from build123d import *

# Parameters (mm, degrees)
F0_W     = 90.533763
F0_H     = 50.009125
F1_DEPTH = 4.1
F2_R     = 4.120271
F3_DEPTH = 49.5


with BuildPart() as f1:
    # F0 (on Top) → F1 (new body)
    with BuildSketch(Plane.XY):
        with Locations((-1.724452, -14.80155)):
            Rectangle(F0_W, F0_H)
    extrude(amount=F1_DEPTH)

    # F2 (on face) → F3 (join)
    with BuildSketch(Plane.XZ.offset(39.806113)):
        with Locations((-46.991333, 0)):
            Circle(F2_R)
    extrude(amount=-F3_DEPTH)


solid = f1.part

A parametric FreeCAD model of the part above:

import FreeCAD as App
import Part
import Sketcher

V = App.Vector
Q = App.Units.Quantity


def add_polygon(sketch, points):
    """Adds a closed chain of lines whose ends are joined by coincident constraints."""
    first, n = sketch.GeometryCount, len(points)
    for a, b in zip(points, points[1:] + points[:1]):
        sketch.addGeometry(Part.LineSegment(App.Vector(*a, 0), App.Vector(*b, 0)), False)
    for i in range(n):
        sketch.addConstraint(Sketcher.Constraint("Coincident", first + i, 2, first + (i + 1) % n, 1))

doc = App.newDocument("Part")
body = doc.addObject("PartDesign::Body", "Body")

# Sketch on XY plane
sketch1 = doc.addObject("Sketcher::SketchObject", "Sketch")
body.addObject(sketch1)
sketch1.AttachmentSupport = (doc.XY_Plane, [""])
sketch1.MapMode = "FlatFace"
add_polygon(sketch1, [(-47, 10), (-47, -40), (44, -40), (44, 10)])  # lines 0-3
sketch1.addConstraint([
    Sketcher.Constraint("Vertical", 0),
    Sketcher.Constraint("Horizontal", 1),
    Sketcher.Constraint("Vertical", 2),
    Sketcher.Constraint("Horizontal", 3),
    Sketcher.Constraint("DistanceX", 1, 1, 1, 2, Q("90.533763 mm")),
    Sketcher.Constraint("DistanceY", 0, 2, 0, 1, Q("50.009125 mm")),
    Sketcher.Constraint("DistanceX", -1, 1, 1, 2, Q("43.542429 mm")),
    Sketcher.Constraint("DistanceY", 0, 2, -1, 1, Q("39.806112 mm")),
])
pad1 = doc.addObject("PartDesign::Pad", "Pad")
body.addObject(pad1)
pad1.Profile = sketch1
pad1.Length = 4.1

# Sketch on XZ plane
sketch2 = doc.addObject("Sketcher::SketchObject", "Sketch001")
body.addObject(sketch2)
sketch2.AttachmentSupport = (doc.XZ_Plane, [""])
sketch2.MapMode = "FlatFace"
sketch2.AttachmentOffset = App.Placement(V(0, 0, 39.806113), App.Rotation())
sketch2.addGeometry(Part.Circle(V(-47, 0, 0), V(0, 0, 1), 4.1), False)
sketch2.addConstraint([
    Sketcher.Constraint("PointOnObject", 0, 3, -1),
    Sketcher.Constraint("Diameter", 0, Q("8.240542 mm")),
    Sketcher.Constraint("DistanceX", 0, 3, -1, 1, Q("46.991333 mm")),
])
pad2 = doc.addObject("PartDesign::Pad", "Pad001")
body.addObject(pad2)
pad2.Profile = sketch2
pad2.Length = 49.5
pad2.Reversed = True

doc.recompute()
